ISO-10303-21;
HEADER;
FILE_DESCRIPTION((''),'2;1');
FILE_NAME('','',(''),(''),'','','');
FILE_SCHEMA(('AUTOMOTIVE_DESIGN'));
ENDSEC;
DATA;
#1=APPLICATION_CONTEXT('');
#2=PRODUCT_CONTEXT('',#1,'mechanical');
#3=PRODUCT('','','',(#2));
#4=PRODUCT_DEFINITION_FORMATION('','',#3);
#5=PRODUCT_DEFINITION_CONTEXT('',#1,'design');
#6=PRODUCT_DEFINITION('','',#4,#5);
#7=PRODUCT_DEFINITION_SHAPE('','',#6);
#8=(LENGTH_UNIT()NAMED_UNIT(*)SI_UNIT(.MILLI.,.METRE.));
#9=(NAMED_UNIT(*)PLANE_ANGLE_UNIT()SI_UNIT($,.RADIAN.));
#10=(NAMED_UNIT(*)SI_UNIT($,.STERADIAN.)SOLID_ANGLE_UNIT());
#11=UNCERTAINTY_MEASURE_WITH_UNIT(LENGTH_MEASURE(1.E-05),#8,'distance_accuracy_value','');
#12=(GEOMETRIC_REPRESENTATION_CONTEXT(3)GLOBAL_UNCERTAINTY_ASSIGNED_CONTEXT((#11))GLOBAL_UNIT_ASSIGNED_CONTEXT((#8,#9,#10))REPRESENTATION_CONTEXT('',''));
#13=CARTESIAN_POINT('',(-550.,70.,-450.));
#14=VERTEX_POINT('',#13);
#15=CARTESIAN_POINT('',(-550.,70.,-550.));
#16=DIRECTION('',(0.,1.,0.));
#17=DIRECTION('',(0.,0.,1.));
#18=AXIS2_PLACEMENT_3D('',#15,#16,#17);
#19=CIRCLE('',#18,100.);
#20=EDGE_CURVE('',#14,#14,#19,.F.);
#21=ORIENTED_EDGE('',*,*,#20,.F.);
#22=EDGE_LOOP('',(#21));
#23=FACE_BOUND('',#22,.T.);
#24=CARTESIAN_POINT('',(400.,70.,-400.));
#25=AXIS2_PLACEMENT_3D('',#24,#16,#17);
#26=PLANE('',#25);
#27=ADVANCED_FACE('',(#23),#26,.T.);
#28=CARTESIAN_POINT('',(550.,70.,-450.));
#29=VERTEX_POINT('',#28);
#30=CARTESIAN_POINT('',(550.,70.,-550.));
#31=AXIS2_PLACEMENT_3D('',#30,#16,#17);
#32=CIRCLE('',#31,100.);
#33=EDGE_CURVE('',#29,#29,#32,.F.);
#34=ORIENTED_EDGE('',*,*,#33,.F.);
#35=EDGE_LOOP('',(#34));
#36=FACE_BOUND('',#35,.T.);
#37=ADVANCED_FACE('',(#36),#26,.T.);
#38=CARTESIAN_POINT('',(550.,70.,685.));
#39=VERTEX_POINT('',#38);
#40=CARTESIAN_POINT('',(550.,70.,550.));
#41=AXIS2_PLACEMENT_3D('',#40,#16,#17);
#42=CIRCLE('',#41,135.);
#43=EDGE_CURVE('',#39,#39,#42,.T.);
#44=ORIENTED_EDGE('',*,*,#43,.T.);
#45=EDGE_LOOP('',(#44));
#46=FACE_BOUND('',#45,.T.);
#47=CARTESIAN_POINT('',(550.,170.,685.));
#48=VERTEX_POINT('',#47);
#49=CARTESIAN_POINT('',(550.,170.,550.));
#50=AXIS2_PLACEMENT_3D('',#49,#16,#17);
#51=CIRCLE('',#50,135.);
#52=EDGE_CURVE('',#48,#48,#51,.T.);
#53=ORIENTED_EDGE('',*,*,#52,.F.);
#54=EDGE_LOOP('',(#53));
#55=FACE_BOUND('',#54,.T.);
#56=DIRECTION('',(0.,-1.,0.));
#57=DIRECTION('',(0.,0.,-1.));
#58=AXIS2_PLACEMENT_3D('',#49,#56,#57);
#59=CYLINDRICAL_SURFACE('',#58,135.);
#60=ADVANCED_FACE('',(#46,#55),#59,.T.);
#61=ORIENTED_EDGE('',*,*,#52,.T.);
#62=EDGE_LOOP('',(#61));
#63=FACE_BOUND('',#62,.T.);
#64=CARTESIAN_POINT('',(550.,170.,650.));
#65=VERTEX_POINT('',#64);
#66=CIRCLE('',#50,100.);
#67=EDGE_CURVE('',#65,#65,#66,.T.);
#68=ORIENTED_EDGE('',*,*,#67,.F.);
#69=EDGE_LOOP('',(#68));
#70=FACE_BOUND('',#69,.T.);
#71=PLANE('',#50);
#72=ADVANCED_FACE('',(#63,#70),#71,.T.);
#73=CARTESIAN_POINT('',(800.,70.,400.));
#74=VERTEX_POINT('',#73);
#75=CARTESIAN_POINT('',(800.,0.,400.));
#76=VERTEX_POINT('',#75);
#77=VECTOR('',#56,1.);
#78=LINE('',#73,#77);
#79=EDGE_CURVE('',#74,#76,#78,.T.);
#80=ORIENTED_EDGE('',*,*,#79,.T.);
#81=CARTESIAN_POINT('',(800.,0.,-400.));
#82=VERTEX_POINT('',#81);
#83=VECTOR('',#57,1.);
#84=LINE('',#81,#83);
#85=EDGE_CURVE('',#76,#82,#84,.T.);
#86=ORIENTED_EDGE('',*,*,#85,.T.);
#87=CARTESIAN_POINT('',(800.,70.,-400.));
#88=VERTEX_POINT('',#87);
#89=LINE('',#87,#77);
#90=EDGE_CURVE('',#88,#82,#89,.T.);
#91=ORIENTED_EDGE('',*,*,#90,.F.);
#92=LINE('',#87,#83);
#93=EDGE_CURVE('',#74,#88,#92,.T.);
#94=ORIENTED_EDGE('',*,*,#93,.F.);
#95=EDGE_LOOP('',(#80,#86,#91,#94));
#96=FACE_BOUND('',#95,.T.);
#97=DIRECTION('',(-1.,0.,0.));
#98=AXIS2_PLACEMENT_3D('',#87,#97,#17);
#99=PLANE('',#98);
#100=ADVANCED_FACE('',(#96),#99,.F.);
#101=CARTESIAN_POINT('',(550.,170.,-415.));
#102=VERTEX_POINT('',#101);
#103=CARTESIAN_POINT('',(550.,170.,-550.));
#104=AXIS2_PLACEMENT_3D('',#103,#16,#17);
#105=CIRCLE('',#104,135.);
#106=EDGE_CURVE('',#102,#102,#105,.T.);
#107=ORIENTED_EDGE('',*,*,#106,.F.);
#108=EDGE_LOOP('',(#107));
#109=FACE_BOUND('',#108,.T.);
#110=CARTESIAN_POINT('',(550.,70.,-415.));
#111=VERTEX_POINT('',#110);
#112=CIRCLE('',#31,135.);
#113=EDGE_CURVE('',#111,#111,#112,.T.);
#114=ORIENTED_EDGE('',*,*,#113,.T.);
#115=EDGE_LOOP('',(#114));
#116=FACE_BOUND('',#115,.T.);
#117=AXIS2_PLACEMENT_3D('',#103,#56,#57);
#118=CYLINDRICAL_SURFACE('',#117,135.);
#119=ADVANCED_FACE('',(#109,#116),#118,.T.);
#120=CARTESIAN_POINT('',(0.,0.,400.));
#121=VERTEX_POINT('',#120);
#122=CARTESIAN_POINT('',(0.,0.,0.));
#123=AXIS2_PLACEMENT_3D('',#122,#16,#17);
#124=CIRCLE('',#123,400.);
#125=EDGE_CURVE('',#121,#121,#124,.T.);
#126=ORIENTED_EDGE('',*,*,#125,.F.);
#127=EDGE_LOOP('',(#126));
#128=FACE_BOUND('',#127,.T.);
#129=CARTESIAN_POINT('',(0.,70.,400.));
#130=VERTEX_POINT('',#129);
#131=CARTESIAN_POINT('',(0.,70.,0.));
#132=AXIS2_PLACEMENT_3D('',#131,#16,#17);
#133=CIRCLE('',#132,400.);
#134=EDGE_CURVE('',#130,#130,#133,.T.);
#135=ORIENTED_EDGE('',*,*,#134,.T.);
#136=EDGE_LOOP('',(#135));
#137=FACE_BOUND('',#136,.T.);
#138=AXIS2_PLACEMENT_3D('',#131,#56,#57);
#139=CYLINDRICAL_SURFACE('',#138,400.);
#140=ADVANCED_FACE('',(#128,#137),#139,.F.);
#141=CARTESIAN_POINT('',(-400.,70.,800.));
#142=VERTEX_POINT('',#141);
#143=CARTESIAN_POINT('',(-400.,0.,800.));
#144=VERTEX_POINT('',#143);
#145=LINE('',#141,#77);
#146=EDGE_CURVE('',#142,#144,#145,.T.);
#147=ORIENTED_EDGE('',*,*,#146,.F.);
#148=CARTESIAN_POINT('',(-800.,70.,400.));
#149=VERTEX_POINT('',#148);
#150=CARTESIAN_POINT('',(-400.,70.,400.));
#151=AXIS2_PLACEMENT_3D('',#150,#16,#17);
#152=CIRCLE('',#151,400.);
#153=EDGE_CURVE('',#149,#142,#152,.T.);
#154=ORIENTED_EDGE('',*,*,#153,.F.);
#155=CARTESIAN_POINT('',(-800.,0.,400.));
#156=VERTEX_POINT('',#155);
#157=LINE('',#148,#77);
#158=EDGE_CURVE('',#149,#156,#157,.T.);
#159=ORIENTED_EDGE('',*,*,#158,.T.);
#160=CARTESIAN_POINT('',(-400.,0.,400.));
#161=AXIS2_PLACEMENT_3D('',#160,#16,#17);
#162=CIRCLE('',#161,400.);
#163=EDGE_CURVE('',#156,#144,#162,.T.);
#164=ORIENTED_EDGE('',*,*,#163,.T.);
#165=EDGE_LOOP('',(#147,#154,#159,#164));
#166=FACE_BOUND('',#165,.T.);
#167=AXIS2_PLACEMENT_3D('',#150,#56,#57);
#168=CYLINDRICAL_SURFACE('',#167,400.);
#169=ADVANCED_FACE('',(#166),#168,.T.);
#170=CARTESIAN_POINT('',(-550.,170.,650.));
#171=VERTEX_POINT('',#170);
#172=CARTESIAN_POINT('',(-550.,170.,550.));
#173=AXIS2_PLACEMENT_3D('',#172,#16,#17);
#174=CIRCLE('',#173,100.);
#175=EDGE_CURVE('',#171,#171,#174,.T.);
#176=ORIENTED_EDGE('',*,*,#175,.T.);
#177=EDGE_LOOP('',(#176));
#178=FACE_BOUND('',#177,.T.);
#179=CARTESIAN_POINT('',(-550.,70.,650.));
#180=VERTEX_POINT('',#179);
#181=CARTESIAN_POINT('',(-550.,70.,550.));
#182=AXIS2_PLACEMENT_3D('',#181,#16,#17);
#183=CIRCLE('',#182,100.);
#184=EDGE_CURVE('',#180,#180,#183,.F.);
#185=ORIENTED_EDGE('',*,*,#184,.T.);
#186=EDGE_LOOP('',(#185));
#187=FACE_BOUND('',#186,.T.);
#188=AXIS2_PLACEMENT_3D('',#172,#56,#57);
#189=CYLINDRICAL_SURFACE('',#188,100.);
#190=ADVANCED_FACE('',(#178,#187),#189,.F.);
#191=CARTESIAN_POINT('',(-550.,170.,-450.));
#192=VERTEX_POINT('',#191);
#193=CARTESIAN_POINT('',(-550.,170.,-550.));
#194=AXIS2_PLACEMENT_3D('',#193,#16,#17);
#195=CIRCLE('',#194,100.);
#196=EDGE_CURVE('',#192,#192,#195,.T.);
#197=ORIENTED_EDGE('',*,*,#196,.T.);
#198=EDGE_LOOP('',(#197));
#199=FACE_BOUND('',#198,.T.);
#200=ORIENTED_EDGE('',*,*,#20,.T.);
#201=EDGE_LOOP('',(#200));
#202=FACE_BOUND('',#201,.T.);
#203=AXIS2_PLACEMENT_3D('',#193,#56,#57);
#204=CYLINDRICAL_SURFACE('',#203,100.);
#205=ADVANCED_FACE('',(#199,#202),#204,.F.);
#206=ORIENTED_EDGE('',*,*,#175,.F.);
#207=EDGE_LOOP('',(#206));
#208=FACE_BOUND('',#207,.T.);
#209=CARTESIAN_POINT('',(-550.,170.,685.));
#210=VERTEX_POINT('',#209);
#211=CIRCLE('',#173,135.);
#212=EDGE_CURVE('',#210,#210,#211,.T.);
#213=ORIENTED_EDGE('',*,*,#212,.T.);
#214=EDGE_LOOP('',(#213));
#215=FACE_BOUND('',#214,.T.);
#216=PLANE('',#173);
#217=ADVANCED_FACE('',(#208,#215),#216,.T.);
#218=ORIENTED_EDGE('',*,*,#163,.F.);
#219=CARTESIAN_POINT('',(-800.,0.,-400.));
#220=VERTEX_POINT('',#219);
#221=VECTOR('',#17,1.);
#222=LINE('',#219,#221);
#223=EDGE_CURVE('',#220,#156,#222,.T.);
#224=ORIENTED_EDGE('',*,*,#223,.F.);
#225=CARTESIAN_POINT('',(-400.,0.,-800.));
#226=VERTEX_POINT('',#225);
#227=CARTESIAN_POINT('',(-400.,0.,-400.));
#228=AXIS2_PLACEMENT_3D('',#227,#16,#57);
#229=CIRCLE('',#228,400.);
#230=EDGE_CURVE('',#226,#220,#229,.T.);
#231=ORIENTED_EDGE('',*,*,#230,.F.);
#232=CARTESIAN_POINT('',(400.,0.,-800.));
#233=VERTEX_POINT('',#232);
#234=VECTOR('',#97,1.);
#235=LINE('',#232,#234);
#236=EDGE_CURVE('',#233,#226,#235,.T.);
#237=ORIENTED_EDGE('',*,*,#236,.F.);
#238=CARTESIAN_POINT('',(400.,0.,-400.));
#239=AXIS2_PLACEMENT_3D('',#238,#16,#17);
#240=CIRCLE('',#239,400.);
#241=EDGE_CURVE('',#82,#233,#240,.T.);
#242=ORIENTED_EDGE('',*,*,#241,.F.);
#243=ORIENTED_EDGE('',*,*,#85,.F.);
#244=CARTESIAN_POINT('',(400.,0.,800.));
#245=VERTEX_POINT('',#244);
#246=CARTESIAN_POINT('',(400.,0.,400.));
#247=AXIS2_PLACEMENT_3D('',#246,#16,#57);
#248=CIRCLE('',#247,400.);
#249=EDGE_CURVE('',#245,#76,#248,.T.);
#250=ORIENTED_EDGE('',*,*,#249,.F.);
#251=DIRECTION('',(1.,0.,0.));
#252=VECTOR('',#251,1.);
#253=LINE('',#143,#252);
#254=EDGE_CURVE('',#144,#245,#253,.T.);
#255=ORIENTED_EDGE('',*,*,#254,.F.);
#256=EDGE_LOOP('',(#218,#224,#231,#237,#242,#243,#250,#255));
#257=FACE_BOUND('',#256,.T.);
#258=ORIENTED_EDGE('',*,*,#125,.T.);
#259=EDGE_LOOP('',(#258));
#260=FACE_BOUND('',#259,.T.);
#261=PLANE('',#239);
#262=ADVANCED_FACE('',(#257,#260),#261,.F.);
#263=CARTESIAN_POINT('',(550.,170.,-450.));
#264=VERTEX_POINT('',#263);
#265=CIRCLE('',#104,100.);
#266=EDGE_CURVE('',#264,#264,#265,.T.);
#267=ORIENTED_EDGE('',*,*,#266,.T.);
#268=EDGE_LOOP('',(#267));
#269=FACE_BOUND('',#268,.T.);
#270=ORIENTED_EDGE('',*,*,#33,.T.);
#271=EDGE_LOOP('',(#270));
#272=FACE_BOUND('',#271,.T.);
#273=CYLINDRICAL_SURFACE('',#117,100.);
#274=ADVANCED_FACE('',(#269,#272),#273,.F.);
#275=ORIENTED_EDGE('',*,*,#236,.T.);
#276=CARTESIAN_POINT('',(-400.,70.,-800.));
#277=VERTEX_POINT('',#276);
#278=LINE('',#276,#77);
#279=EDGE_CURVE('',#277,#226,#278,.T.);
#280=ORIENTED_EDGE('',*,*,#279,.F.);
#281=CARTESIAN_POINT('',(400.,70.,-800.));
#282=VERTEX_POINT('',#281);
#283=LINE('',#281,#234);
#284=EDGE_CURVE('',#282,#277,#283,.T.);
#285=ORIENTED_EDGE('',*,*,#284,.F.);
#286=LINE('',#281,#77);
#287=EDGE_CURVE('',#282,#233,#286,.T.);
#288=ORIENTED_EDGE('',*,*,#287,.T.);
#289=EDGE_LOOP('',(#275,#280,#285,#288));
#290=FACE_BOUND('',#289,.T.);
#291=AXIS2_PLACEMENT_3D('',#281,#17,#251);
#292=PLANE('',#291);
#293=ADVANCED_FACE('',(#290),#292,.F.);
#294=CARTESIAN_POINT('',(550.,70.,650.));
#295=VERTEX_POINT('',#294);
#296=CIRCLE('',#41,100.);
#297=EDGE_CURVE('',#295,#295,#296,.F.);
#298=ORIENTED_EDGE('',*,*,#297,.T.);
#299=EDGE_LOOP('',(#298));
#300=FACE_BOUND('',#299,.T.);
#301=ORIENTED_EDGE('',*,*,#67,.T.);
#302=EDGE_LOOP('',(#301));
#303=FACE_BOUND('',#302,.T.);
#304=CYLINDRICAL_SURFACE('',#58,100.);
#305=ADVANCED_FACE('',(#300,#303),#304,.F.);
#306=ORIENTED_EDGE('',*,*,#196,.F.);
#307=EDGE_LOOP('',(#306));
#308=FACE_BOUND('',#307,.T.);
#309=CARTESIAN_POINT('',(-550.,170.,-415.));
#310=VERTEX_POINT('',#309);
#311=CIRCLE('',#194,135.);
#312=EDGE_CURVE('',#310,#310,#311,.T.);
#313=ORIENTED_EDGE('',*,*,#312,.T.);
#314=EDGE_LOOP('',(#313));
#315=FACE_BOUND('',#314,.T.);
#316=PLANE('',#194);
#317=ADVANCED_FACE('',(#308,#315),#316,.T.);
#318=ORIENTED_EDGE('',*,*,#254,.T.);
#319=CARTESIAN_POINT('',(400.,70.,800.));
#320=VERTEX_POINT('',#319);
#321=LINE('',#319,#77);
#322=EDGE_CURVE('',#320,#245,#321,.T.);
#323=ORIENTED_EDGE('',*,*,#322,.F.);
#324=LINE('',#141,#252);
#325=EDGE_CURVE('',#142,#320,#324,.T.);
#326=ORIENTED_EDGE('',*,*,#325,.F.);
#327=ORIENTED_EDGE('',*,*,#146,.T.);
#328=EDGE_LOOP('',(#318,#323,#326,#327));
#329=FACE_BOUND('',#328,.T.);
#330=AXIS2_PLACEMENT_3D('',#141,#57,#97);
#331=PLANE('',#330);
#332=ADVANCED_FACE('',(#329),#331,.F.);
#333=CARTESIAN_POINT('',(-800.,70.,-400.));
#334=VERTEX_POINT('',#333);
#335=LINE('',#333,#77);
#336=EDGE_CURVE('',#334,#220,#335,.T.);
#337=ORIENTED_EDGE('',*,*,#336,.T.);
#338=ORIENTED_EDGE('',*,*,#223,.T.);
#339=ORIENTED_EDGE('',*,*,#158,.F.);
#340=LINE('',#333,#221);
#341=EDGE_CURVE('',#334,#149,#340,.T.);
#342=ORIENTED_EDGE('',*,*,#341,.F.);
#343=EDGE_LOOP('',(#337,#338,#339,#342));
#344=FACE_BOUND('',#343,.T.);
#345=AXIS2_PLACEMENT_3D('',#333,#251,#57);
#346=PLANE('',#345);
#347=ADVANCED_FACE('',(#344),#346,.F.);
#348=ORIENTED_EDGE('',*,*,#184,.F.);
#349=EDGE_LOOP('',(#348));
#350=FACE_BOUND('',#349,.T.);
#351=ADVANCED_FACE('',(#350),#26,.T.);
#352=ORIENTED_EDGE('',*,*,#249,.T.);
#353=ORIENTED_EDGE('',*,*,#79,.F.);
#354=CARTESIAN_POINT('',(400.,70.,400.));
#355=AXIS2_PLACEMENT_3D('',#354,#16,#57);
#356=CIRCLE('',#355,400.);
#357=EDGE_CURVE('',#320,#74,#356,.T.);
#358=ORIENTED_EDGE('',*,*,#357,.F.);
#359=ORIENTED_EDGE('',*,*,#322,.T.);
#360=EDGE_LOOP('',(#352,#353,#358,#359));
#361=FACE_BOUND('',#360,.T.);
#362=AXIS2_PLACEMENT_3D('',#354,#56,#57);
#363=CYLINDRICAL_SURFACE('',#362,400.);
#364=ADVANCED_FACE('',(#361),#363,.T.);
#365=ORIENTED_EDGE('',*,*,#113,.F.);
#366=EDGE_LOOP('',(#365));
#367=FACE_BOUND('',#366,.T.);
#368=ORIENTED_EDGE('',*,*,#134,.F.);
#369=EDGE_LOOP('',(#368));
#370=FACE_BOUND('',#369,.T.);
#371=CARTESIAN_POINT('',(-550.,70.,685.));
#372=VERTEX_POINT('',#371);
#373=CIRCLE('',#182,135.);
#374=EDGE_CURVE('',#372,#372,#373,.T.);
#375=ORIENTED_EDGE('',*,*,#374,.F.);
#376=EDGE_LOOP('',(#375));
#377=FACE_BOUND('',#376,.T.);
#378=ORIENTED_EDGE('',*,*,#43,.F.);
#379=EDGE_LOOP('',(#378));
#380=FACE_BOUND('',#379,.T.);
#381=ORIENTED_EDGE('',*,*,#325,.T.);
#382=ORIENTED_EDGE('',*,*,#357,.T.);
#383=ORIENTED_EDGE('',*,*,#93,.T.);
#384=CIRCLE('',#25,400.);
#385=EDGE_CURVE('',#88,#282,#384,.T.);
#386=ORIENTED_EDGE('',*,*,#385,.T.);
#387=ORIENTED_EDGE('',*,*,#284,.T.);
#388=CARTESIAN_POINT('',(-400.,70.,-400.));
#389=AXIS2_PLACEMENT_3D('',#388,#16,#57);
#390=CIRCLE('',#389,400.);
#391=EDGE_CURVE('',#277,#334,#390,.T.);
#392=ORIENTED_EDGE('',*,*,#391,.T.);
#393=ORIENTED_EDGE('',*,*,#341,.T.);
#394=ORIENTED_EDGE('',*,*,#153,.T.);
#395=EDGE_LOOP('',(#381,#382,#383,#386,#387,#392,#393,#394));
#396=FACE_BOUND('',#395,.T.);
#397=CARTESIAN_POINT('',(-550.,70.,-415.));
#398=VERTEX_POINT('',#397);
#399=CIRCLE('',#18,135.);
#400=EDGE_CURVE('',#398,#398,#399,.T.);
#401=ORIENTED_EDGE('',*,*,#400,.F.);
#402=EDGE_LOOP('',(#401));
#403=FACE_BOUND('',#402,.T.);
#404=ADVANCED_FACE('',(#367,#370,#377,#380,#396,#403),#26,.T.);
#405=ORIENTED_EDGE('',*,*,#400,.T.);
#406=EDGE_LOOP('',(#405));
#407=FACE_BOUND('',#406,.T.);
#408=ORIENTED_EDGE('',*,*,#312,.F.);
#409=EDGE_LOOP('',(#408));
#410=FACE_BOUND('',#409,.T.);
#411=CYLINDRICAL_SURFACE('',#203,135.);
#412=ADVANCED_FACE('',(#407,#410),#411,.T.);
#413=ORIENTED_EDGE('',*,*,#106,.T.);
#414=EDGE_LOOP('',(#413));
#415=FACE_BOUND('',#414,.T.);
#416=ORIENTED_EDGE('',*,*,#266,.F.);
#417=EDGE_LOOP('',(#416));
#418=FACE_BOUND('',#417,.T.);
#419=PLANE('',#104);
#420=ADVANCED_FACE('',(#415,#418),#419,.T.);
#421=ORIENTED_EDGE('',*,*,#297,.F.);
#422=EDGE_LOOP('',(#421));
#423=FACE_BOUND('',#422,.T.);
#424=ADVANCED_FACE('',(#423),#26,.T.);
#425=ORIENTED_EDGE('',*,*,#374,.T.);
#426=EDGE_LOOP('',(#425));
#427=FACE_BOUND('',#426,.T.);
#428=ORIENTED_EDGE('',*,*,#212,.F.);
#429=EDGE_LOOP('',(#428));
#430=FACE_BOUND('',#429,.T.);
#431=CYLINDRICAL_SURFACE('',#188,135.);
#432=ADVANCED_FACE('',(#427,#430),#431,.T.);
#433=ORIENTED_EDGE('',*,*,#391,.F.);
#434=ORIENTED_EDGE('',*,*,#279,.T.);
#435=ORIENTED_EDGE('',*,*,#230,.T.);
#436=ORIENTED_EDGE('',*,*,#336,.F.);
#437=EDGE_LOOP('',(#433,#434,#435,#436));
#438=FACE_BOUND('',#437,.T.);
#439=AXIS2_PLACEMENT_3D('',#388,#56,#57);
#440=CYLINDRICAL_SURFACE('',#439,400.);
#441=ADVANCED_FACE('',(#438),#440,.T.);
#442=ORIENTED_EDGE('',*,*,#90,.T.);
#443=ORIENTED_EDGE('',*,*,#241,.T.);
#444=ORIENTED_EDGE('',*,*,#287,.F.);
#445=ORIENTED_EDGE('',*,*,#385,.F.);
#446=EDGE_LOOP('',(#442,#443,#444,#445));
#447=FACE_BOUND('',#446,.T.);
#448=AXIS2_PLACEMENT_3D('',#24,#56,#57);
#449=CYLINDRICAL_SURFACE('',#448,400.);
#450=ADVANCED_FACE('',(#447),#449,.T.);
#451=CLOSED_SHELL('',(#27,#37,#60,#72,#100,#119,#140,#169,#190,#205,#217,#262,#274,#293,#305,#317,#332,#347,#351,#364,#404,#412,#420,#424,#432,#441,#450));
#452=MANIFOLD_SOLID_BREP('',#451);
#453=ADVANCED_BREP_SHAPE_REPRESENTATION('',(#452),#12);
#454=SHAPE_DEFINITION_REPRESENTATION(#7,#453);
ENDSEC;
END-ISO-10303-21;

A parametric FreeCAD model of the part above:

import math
import FreeCAD as App
import Part
import Sketcher
from FreeCAD import Vector

doc = App.newDocument("Part")
body = doc.addObject("PartDesign::Body", "Body")

# Sketch on XZ plane
sketch1 = doc.addObject("Sketcher::SketchObject", "Sketch")
body.addObject(sketch1)
sketch1.AttachmentSupport = (doc.XZ_Plane, [""])
sketch1.MapMode = "FlatFace"
sketch1.addGeometry([
    Part.LineSegment(Vector(800, 400, 0), Vector(800, -400, 0)),  # 0
    Part.ArcOfCircle(Part.Circle(Vector(400, -400, 0), Vector(0, 0, 1), 400), math.radians(-90), math.radians(0)),  # 1
    Part.LineSegment(Vector(400, -800, 0), Vector(-400, -800, 0)),  # 2
    Part.ArcOfCircle(Part.Circle(Vector(-400, -400, 0), Vector(0, 0, 1), 400), math.radians(180), math.radians(270)),  # 3
    Part.LineSegment(Vector(-800, -400, 0), Vector(-800, 400, 0)),  # 4
    Part.ArcOfCircle(Part.Circle(Vector(-400, 400, 0), Vector(0, 0, 1), 400), math.radians(90), math.radians(180)),  # 5
    Part.LineSegment(Vector(-400, 800, 0), Vector(400, 800, 0)),  # 6
    Part.ArcOfCircle(Part.Circle(Vector(400, 400, 0), Vector(0, 0, 1), 400), math.radians(0), math.radians(90)),  # 7
    Part.Circle(Vector(0, 0, 0), Vector(0, 0, 1), 400),  # 8
], False)
sketch1.addConstraint([
    Sketcher.Constraint("Tangent", 0, 2, 1, 2),
    Sketcher.Constraint("Tangent", 1, 1, 2, 1),
    Sketcher.Constraint("Tangent", 2, 2, 3, 2),
    Sketcher.Constraint("Tangent", 3, 1, 4, 1),
    Sketcher.Constraint("Tangent", 4, 2, 5, 2),
    Sketcher.Constraint("Tangent", 5, 1, 6, 1),
    Sketcher.Constraint("Tangent", 6, 2, 7, 2),
    Sketcher.Constraint("Tangent", 7, 1, 0, 1),
    Sketcher.Constraint("Vertical", 0),
    Sketcher.Constraint("Horizontal", 2),
    Sketcher.Constraint("Vertical", 4),
    Sketcher.Constraint("Horizontal", 6),
    Sketcher.Constraint("Coincident", 8, 3, -1, 1),
    Sketcher.Constraint("Equal", 1, 3),
    Sketcher.Constraint("Equal", 3, 5),
    Sketcher.Constraint("Equal", 5, 7),
    Sketcher.Constraint("Equal", 7, 8),
    Sketcher.Constraint("Symmetric", 1, 3, 5, 3, -1, 1),
    Sketcher.Constraint("Equal", 6, 0),
    Sketcher.Constraint("Diameter", 8, 800.0),
    Sketcher.Constraint("DistanceX", 2, 2, 2, 1, 800.0),
])
pad1 = doc.addObject("PartDesign::Pad", "Pad")
body.addObject(pad1)
pad1.Profile = sketch1
pad1.Length = 70
pad1.Reversed = True

# Sketch on XZ plane
sketch2 = doc.addObject("Sketcher::SketchObject", "Sketch001")
body.addObject(sketch2)
sketch2.AttachmentSupport = (doc.XZ_Plane, [""])
sketch2.MapMode = "FlatFace"
sketch2.AttachmentOffset = App.Placement(Vector(0, 0, -70), App.Rotation())
sketch2.addGeometry([
    Part.Circle(Vector(-550, -550, 0), Vector(0, 0, 1), 135),  # 0
    Part.Circle(Vector(-550, -550, 0), Vector(0, 0, 1), 100),  # 1
    Part.Circle(Vector(550, -550, 0), Vector(0, 0, 1), 135),  # 2
    Part.Circle(Vector(550, -550, 0), Vector(0, 0, 1), 100),  # 3
    Part.Circle(Vector(-550, 550, 0), Vector(0, 0, 1), 135),  # 4
    Part.Circle(Vector(-550, 550, 0), Vector(0, 0, 1), 100),  # 5
    Part.Circle(Vector(550, 550, 0), Vector(0, 0, 1), 135),  # 6
    Part.Circle(Vector(550, 550, 0), Vector(0, 0, 1), 100),  # 7
], False)
sketch2.addConstraint([
    Sketcher.Constraint("Coincident", 1, 3, 0, 3),
    Sketcher.Constraint("Coincident", 3, 3, 2, 3),
    Sketcher.Constraint("Coincident", 5, 3, 4, 3),
    Sketcher.Constraint("Coincident", 7, 3, 6, 3),
    Sketcher.Constraint("Equal", 0, 2),
    Sketcher.Constraint("Equal", 1, 3),
    Sketcher.Constraint("Equal", 2, 4),
    Sketcher.Constraint("Equal", 3, 5),
    Sketcher.Constraint("Equal", 4, 6),
    Sketcher.Constraint("Equal", 5, 7),
    Sketcher.Constraint("Symmetric", 2, 3, 4, 3, -1, 1),
    Sketcher.Constraint("Symmetric", 0, 3, 6, 3, -1, 1),
    Sketcher.Constraint("Symmetric", 0, 3, 2, 3, -2),
    Sketcher.Constraint("Diameter", 0, 270.0),
    Sketcher.Constraint("Diameter", 1, 200.0),
    Sketcher.Constraint("DistanceX", 0, 3, -1, 1, 550.0),
    Sketcher.Constraint("DistanceY", 0, 3, -1, 1, 550.0),
])
pad2 = doc.addObject("PartDesign::Pad", "Pad001")
body.addObject(pad2)
pad2.Profile = sketch2
pad2.Length = 100
pad2.Reversed = True

doc.recompute()
